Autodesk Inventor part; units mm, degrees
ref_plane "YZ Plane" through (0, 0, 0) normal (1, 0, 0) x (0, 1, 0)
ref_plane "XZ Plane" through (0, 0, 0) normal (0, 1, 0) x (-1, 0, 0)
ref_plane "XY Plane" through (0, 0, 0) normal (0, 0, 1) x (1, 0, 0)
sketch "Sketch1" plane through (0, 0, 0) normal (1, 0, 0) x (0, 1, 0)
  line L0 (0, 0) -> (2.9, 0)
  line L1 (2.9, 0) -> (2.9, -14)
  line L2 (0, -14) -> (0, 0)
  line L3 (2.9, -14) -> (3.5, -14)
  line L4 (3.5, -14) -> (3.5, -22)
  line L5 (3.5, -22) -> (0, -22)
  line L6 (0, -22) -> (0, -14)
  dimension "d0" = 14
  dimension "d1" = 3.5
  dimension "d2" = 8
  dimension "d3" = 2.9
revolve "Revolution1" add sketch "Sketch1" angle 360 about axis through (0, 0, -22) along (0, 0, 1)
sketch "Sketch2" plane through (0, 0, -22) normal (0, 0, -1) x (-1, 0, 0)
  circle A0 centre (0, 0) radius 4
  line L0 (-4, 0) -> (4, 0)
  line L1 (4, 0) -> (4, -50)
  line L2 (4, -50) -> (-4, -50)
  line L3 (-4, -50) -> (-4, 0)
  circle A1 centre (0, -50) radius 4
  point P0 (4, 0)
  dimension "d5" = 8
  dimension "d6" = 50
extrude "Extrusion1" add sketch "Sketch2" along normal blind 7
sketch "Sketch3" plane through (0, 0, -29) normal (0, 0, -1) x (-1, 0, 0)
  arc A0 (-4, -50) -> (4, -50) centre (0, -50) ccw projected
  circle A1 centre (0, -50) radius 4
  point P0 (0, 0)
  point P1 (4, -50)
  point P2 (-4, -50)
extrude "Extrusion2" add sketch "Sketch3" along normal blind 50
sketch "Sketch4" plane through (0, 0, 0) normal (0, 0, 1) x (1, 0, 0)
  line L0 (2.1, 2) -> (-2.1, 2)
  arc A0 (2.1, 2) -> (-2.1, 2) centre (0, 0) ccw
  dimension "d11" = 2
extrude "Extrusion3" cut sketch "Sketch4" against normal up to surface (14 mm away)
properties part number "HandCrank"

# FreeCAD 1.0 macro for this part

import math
import FreeCAD as App
import Part
import Sketcher
from FreeCAD import Vector
Q = App.Units.Quantity


def add_polygon(sketch, points):
    """Adds a closed chain of lines whose ends are joined by coincident constraints."""
    first, n = sketch.GeometryCount, len(points)
    for a, b in zip(points, points[1:] + points[:1]):
        sketch.addGeometry(Part.LineSegment(App.Vector(*a, 0), App.Vector(*b, 0)), False)
    for i in range(n):
        sketch.addConstraint(Sketcher.Constraint("Coincident", first + i, 2, first + (i + 1) % n, 1))

doc = App.newDocument("Part")
body = doc.addObject("PartDesign::Body", "Body")

# Sketch on YZ plane
sketch1 = body.newObject("Sketcher::SketchObject", "Sketch")
sketch1.AttachmentSupport = (doc.getObject("YZ_Plane"), [""])
sketch1.MapMode = "FlatFace"
add_polygon(sketch1, [(2.9, 0), (0, 0), (0, -22), (3.5, -22), (3.5, -14), (2.9, -14)])  # lines 0-5
sketch1.addConstraint(Sketcher.Constraint("Horizontal", 0))
sketch1.addConstraint(Sketcher.Constraint("Vertical", 1))
sketch1.addConstraint(Sketcher.Constraint("Horizontal", 2))
sketch1.addConstraint(Sketcher.Constraint("Vertical", 3))
sketch1.addConstraint(Sketcher.Constraint("Horizontal", 4))
sketch1.addConstraint(Sketcher.Constraint("Vertical", 5))
sketch1.addConstraint(Sketcher.Constraint("Coincident", 0, 2, -1, 1))
sketch1.addConstraint(Sketcher.Constraint("DistanceY", 3, 1, 3, 2, Q("8 mm")))
sketch1.addConstraint(Sketcher.Constraint("DistanceY", 5, 1, 5, 2, Q("14 mm")))
sketch1.addConstraint(Sketcher.Constraint("DistanceX", 0, 2, 0, 1, Q("2.9 mm")))
sketch1.addConstraint(Sketcher.Constraint("DistanceX", 2, 1, 2, 2, Q("3.5 mm")))
revolution = body.newObject("PartDesign::Revolution", "Revolution")
revolution.Profile = sketch1
revolution.ReferenceAxis = (sketch1, ["V_Axis"])
revolution.Angle = 360

# Sketch on XY plane
sketch2 = body.newObject("Sketcher::SketchObject", "Sketch001")
sketch2.AttachmentSupport = (doc.getObject("XY_Plane"), [""])
sketch2.MapMode = "FlatFace"
sketch2.AttachmentOffset = App.Placement(Vector(0, 0, -22), App.Rotation())
sketch2.addGeometry(Part.ArcOfCircle(Part.Circle(Vector(0, 0, 0), Vector(0, 0, 1), 4), math.radians(0), math.radians(180)), False)
sketch2.addGeometry(Part.LineSegment(Vector(4, 0, 0), Vector(4, -50, 0)), False)
sketch2.addGeometry(Part.ArcOfCircle(Part.Circle(Vector(0, -50, 0), Vector(0, 0, 1), 4), math.radians(180), math.radians(360)), False)
sketch2.addGeometry(Part.LineSegment(Vector(-4, -50, 0), Vector(-4, 0, 0)), False)
sketch2.addConstraint(Sketcher.Constraint("Tangent", 0, 1, 1, 1))
sketch2.addConstraint(Sketcher.Constraint("Tangent", 1, 2, 2, 2))
sketch2.addConstraint(Sketcher.Constraint("Tangent", 2, 1, 3, 1))
sketch2.addConstraint(Sketcher.Constraint("Tangent", 3, 2, 0, 2))
sketch2.addConstraint(Sketcher.Constraint("Vertical", 1))
sketch2.addConstraint(Sketcher.Constraint("Vertical", 3))
sketch2.addConstraint(Sketcher.Constraint("Coincident", 0, 3, -1, 1))
sketch2.addConstraint(Sketcher.Constraint("Radius", 0, Q("4 mm")))
sketch2.addConstraint(Sketcher.Constraint("DistanceY", 1, 2, 1, 1, Q("50 mm")))
pad1 = body.newObject("PartDesign::Pad", "Pad")
pad1.Profile = sketch2
pad1.Length = 7
pad1.Reversed = True

# Sketch on XY plane
sketch3 = body.newObject("Sketcher::SketchObject", "Sketch002")
sketch3.AttachmentSupport = (doc.getObject("XY_Plane"), [""])
sketch3.MapMode = "FlatFace"
sketch3.AttachmentOffset = App.Placement(Vector(0, 0, -29), App.Rotation())
sketch3.addGeometry(Part.Circle(Vector(0, -50, 0), Vector(0, 0, 1), 4), False)
sketch3.addConstraint(Sketcher.Constraint("PointOnObject", 0, 3, -2))
sketch3.addConstraint(Sketcher.Constraint("Diameter", 0, Q("8 mm")))
sketch3.addConstraint(Sketcher.Constraint("DistanceY", 0, 3, -1, 1, Q("50 mm")))
pad2 = body.newObject("PartDesign::Pad", "Pad001")
pad2.Profile = sketch3
pad2.Length = 50
pad2.Reversed = True

# Sketch on XY plane
sketch4 = body.newObject("Sketcher::SketchObject", "Sketch003")
sketch4.AttachmentSupport = (doc.getObject("XY_Plane"), [""])
sketch4.MapMode = "FlatFace"
sketch4.addGeometry(Part.LineSegment(Vector(-2.1, 2, 0), Vector(2.1, 2, 0)), False)
sketch4.addGeometry(Part.ArcOfCircle(Part.Circle(Vector(0, 0, 0), Vector(0, 0, 1), 2.9), math.radians(44), math.radians(136)), False)
sketch4.addConstraint(Sketcher.Constraint("Coincident", 0, 1, 1, 2))
sketch4.addConstraint(Sketcher.Constraint("Coincident", 1, 1, 0, 2))
sketch4.addConstraint(Sketcher.Constraint("Horizontal", 0))
sketch4.addConstraint(Sketcher.Constraint("Coincident", 1, 3, -1, 1))
sketch4.addConstraint(Sketcher.Constraint("DistanceY", -1, 1, 0, 1, Q("2 mm")))
sketch4.addConstraint(Sketcher.Constraint("Radius", 1, Q("2.9 mm")))
pocket1 = body.newObject("PartDesign::Pocket", "Pocket")
pocket1.Profile = sketch4
pocket1.Length = 14

doc.recompute()
